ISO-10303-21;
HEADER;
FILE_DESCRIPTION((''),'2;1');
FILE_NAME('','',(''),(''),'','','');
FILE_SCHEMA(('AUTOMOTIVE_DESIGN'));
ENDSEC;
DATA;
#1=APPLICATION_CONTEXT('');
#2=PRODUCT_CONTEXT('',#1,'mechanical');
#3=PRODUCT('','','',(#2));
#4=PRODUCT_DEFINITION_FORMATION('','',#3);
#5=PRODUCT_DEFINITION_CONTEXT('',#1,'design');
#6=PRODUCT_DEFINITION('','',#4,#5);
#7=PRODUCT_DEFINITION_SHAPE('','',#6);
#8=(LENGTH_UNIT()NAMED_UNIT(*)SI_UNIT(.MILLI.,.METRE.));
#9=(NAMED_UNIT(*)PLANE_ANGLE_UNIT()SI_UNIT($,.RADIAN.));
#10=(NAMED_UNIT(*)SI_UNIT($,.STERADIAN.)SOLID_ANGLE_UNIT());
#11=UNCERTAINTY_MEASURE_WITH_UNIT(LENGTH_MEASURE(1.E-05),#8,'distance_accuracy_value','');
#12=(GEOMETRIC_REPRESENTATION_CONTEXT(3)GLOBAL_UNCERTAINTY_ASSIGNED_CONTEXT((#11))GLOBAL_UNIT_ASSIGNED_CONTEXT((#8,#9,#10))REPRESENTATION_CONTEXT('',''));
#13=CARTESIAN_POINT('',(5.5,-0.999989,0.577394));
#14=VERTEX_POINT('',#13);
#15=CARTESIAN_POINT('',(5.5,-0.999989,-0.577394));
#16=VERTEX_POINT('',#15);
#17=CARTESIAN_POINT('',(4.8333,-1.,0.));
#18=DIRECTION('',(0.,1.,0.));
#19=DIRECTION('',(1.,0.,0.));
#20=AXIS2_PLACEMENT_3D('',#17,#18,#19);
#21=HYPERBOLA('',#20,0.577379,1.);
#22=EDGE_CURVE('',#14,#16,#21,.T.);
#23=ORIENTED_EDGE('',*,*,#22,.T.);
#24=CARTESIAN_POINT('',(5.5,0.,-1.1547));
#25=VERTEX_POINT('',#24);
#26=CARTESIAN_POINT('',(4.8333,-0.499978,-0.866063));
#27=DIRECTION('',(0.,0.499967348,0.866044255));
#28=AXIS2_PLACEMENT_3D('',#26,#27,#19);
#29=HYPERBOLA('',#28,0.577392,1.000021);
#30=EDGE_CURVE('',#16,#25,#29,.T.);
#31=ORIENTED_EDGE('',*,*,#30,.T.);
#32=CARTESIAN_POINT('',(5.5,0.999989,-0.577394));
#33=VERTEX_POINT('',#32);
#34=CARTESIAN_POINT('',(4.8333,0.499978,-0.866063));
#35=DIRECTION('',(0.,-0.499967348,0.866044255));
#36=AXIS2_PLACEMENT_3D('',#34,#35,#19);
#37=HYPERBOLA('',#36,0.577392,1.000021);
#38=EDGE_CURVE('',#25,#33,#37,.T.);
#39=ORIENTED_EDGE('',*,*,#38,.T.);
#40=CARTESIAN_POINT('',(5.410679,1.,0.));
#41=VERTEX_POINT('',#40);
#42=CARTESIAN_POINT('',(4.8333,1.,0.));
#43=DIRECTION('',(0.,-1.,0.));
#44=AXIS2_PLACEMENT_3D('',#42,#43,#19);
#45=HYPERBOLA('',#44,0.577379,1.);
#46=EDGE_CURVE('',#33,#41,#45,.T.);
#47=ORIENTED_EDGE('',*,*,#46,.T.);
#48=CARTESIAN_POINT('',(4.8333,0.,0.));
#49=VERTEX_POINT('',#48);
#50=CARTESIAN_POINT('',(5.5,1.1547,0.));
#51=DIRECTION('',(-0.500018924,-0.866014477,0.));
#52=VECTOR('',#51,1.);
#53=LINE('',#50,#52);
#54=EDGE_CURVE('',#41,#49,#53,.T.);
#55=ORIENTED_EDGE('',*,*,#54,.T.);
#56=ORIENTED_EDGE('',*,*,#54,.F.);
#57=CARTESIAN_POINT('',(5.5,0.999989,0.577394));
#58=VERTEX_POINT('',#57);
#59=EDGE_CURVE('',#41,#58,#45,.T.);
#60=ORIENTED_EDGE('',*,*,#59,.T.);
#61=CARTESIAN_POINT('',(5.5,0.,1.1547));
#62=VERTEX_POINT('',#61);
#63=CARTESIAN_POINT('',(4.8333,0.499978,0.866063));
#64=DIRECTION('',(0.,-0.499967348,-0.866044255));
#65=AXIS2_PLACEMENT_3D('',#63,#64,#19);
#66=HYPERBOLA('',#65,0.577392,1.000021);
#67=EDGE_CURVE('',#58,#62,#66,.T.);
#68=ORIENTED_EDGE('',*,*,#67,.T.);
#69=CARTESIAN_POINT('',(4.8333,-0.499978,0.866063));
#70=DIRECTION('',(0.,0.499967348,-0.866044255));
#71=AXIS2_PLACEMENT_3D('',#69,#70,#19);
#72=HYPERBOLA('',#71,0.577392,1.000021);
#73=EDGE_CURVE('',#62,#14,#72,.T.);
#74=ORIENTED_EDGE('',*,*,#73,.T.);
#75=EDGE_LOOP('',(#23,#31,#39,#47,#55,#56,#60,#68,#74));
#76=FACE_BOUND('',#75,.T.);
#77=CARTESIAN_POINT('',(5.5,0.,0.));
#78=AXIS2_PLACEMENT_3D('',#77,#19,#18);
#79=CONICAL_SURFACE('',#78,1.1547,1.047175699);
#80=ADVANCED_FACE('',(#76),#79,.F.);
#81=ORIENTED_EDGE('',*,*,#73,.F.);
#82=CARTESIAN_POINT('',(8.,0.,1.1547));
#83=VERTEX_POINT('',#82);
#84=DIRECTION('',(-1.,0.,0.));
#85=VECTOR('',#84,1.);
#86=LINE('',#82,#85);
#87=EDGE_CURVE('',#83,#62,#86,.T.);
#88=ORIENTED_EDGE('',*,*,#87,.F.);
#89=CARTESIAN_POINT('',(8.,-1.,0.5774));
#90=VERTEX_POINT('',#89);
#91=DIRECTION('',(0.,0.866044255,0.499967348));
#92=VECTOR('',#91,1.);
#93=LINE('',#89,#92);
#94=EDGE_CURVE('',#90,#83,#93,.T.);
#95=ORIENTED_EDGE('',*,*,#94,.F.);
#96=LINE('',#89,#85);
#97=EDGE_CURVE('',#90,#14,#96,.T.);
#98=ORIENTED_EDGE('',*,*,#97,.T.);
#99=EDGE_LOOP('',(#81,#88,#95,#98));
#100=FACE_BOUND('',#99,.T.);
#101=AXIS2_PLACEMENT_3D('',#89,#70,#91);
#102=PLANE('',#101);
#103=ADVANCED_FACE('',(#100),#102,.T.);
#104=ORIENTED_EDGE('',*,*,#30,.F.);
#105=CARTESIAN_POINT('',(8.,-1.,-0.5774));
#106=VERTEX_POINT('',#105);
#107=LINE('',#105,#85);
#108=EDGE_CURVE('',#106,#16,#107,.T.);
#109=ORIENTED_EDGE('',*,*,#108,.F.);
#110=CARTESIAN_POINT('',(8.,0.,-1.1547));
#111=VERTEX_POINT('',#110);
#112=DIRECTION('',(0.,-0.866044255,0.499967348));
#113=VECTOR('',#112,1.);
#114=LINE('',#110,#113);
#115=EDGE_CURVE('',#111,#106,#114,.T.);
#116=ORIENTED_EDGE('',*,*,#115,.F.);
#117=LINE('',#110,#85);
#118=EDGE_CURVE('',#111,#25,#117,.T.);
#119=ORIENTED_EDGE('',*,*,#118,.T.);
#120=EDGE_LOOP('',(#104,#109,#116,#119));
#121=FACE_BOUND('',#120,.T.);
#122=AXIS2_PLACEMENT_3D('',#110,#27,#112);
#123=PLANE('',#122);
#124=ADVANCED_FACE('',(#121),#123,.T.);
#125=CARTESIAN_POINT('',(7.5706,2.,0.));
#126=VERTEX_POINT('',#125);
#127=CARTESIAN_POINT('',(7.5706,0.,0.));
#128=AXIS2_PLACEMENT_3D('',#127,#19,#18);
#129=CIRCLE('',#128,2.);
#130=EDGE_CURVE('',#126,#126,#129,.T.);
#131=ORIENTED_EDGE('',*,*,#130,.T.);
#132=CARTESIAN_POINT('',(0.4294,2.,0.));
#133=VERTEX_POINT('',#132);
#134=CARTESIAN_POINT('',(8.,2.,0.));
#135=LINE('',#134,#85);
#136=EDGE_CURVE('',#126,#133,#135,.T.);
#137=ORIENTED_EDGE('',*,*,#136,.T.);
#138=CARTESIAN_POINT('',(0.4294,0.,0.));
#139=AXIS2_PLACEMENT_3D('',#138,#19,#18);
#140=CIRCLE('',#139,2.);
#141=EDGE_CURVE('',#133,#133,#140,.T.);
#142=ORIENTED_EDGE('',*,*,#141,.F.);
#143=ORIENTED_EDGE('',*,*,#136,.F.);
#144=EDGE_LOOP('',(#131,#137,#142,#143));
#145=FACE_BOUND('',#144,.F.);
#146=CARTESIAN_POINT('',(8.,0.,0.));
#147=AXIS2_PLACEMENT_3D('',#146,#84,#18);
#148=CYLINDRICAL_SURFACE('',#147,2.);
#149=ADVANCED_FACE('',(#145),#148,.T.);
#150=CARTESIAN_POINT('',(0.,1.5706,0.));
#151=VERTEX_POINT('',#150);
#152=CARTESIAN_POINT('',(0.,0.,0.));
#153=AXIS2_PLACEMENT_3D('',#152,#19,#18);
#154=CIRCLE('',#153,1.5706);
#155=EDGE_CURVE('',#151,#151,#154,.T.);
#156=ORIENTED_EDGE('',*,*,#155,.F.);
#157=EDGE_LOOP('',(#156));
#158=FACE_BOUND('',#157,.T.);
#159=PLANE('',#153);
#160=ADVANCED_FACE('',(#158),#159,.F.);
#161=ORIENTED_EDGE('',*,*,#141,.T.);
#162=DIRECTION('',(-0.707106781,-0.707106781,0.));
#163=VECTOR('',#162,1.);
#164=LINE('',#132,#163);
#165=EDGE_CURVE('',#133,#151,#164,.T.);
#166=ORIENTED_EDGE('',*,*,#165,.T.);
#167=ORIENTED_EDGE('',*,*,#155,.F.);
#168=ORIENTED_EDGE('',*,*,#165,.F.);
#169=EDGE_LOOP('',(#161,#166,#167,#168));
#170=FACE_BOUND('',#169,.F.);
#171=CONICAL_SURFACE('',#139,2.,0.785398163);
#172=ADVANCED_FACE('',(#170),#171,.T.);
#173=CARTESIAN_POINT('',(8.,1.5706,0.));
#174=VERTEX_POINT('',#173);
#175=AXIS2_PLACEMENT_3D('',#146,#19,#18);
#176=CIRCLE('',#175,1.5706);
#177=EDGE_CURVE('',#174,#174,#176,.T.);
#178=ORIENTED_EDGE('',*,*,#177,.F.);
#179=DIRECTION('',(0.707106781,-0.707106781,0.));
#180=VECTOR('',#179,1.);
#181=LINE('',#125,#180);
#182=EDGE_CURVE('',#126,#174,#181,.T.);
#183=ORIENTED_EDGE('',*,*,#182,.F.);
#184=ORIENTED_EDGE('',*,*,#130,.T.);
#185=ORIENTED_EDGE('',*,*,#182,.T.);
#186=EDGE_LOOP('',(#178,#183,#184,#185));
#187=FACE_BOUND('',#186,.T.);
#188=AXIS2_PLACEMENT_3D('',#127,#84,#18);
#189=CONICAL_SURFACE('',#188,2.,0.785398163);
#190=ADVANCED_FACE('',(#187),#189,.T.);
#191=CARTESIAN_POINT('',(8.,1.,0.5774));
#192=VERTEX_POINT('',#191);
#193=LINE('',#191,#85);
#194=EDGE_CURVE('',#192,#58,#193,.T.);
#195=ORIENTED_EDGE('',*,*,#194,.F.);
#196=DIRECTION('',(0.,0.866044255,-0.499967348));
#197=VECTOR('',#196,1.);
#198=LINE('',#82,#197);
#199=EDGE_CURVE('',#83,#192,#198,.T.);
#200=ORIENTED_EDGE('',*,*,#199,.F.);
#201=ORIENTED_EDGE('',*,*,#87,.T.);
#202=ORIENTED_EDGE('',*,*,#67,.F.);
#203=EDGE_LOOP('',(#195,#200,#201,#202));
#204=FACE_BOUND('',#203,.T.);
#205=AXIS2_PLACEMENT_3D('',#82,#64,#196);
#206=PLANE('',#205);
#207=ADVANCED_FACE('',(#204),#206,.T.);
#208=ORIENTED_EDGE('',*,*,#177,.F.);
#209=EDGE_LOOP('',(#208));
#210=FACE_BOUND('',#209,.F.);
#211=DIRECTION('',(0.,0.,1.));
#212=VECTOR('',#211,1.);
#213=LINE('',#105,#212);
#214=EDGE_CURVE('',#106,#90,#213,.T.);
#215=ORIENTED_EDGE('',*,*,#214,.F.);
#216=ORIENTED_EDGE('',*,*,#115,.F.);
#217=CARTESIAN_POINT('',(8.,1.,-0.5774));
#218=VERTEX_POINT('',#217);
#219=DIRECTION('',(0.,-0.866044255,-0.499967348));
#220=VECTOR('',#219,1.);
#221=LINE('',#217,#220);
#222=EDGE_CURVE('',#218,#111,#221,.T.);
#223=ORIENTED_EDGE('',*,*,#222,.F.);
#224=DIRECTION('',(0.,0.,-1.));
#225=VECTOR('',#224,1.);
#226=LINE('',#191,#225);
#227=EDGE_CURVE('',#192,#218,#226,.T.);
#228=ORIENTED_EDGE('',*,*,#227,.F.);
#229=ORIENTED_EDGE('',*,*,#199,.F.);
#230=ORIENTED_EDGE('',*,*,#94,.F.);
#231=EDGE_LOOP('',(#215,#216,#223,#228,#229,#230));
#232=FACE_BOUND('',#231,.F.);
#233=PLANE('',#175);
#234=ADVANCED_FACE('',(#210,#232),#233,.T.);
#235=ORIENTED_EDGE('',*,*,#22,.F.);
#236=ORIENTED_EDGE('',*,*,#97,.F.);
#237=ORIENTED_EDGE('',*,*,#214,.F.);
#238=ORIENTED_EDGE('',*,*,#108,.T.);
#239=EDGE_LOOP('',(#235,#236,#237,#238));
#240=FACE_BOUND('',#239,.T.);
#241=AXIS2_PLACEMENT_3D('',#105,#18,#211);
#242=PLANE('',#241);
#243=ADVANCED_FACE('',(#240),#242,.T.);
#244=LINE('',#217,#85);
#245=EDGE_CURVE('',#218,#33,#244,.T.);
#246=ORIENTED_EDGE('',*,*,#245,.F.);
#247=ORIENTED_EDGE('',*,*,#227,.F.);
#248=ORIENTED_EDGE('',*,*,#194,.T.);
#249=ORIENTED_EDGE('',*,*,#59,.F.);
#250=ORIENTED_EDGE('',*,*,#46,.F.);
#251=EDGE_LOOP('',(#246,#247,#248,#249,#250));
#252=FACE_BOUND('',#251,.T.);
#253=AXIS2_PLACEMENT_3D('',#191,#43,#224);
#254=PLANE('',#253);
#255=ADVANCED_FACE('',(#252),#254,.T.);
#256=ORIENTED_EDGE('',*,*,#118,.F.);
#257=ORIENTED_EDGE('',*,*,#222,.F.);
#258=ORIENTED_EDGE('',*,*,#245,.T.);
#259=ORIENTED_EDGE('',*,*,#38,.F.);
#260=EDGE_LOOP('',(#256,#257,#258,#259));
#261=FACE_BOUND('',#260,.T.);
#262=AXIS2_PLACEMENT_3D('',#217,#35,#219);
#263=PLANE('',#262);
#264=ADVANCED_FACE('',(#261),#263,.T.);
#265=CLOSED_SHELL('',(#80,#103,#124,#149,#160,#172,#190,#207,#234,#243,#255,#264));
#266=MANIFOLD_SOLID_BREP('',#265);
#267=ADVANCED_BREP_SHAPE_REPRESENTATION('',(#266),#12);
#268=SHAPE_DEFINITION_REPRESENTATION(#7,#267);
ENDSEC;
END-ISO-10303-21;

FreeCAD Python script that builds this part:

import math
import FreeCAD as App
import Part
import Sketcher

V = App.Vector
Q = App.Units.Quantity


def edges_at(feature, points):
    """Names of the edges that pass closest to the given points."""
    edges = feature.Shape.Edges
    near = lambda p: min(range(len(edges)), key=lambda i: edges[i].distToShape(Part.Vertex(*p))[0])
    return sorted({f"Edge{near(p) + 1}" for p in points})

doc = App.newDocument("Part")
params = doc.addObject("Spreadsheet::Sheet", "Params")
for row, (alias, value) in enumerate([
    ("sketch1_width", "8 mm"),
    ("sketch1_width2", "2.5 mm"),
    ("sketch1_height", "2 mm"),
    ("revolution_angle", "360 deg"),
    ("chamfer_size", "0.4294 mm"),
    ("chamfer2_size", "0.4294 mm"),
], start=1):
    params.set(f"A{row}", alias)
    params.set(f"B{row}", "=" + value)
    params.setAlias(f"B{row}", alias)

body = doc.addObject("PartDesign::Body", "Body")

# Sketch on XY plane
sketch1 = body.newObject("Sketcher::SketchObject", "Sketch")
sketch1.AttachmentSupport = (doc.getObject("XY_Plane"), [""])
sketch1.MapMode = "FlatFace"
sketch1.addGeometry([
    Part.LineSegment(V(0, 2, 0), V(0, 0, 0)),  # 0
    Part.LineSegment(V(0, 0, 0), V(4.8, 0, 0)),  # 1
    Part.LineSegment(V(4.8, 0, 0), V(5.5, 1.2, 0)),  # 2
    Part.LineSegment(V(5.5, 1.2, 0), V(8, 1.2, 0)),  # 3
    Part.LineSegment(V(8, 1.2, 0), V(8, 2, 0)),  # 4
    Part.LineSegment(V(8, 2, 0), V(0, 2, 0)),  # 5
], False)
sketch1.addConstraint([
    Sketcher.Constraint("Coincident", 0, 2, 1, 1),
    Sketcher.Constraint("Coincident", 1, 2, 2, 1),
    Sketcher.Constraint("Coincident", 2, 2, 3, 1),
    Sketcher.Constraint("Coincident", 3, 2, 4, 1),
    Sketcher.Constraint("Coincident", 4, 2, 5, 1),
    Sketcher.Constraint("Coincident", 5, 2, 0, 1),
    Sketcher.Constraint("Vertical", 0),
    Sketcher.Constraint("Horizontal", 1),
    Sketcher.Constraint("Horizontal", 3),
    Sketcher.Constraint("Vertical", 4),
    Sketcher.Constraint("Horizontal", 5),
    Sketcher.Constraint("Coincident", 0, 2, -1, 1),
    Sketcher.Constraint("DistanceX", 5, 2, 5, 1, Q("8 mm")),
    Sketcher.Constraint("DistanceX", 3, 1, 3, 2, Q("2.5 mm")),
    Sketcher.Constraint("DistanceY", 0, 2, 0, 1, Q("2 mm")),
    Sketcher.Constraint("DistanceX", 1, 1, 1, 2, Q("4.8333 mm")),
    Sketcher.Constraint("DistanceY", 4, 1, 4, 2, Q("0.8453 mm")),
])
sketch1.setExpression("Constraints[12]", "Params.sketch1_width")
sketch1.setExpression("Constraints[13]", "Params.sketch1_width2")
sketch1.setExpression("Constraints[14]", "Params.sketch1_height")
revolution = body.newObject("PartDesign::Revolution", "Revolution")
revolution.Profile = sketch1
revolution.ReferenceAxis = (sketch1, ["H_Axis"])
revolution.setExpression("Angle", "Params.revolution_angle")
doc.recompute()

chamfer = body.newObject("PartDesign::Chamfer", "Chamfer")
chamfer.Base = (revolution, edges_at(revolution, [(8, -2, 0)]))
chamfer.setExpression("Size", "Params.chamfer_size")

# Sketch on YZ plane
sketch2 = body.newObject("Sketcher::SketchObject", "Sketch001")
sketch2.AttachmentSupport = (doc.getObject("YZ_Plane"), [""])
sketch2.MapMode = "FlatFace"
sketch2.AttachmentOffset = App.Placement(V(0, 0, 8), App.Rotation())
sketch2.addGeometry([
    Part.LineSegment(V(1, -0.6, 0), V(0, -1.2, 0)),  # 0
    Part.ArcOfCircle(Part.Circle(V(0, 0, 0), V(0, 0, 1), 1.2), math.radians(-90), math.radians(-30)),  # 1
    Part.ArcOfCircle(Part.Circle(V(0, 0, 0), V(0, 0, 1), 1.2), math.radians(-150), math.radians(-90)),  # 2
    Part.LineSegment(V(0, -1.2, 0), V(-1, -0.6, 0)),  # 3
    Part.LineSegment(V(1, 0.6, 0), V(1, -0.6, 0)),  # 4
    Part.ArcOfCircle(Part.Circle(V(0, 0, 0), V(0, 0, 1), 1.2), math.radians(-30), math.radians(30)),  # 5
    Part.ArcOfCircle(Part.Circle(V(0, 0, 0), V(0, 0, 1), 1.2), math.radians(150), math.radians(210)),  # 6
    Part.LineSegment(V(-1, 0.6, 0), V(-1, -0.6, 0)),  # 7
    Part.LineSegment(V(0, 1.2, 0), V(1, 0.6, 0)),  # 8
    Part.ArcOfCircle(Part.Circle(V(0, 0, 0), V(0, 0, 1), 1.2), math.radians(30), math.radians(90)),  # 9
    Part.ArcOfCircle(Part.Circle(V(0, 0, 0), V(0, 0, 1), 1.2), math.radians(90), math.radians(150)),  # 10
    Part.LineSegment(V(0, 1.2, 0), V(-1, 0.6, 0)),  # 11
], False)
sketch2.addConstraint([
    Sketcher.Constraint("Coincident", 0, 1, 1, 2),
    Sketcher.Constraint("Coincident", 1, 1, 0, 2),
    Sketcher.Constraint("Coincident", 2, 1, 3, 2),
    Sketcher.Constraint("Coincident", 3, 1, 2, 2),
    Sketcher.Constraint("Coincident", 4, 1, 5, 2),
    Sketcher.Constraint("Coincident", 5, 1, 4, 2),
    Sketcher.Constraint("Coincident", 6, 1, 7, 1),
    Sketcher.Constraint("Coincident", 7, 2, 6, 2),
    Sketcher.Constraint("Coincident", 8, 1, 9, 2),
    Sketcher.Constraint("Coincident", 9, 1, 8, 2),
    Sketcher.Constraint("Coincident", 10, 1, 11, 1),
    Sketcher.Constraint("Coincident", 11, 2, 10, 2),
    Sketcher.Constraint("Vertical", 4),
    Sketcher.Constraint("Vertical", 7),
    Sketcher.Constraint("Coincident", 1, 3, -1, 1),
    Sketcher.Constraint("Coincident", 2, 3, -1, 1),
    Sketcher.Constraint("Coincident", 5, 3, -1, 1),
    Sketcher.Constraint("Coincident", 6, 3, -1, 1),
    Sketcher.Constraint("Coincident", 9, 3, -1, 1),
    Sketcher.Constraint("Coincident", 10, 3, -1, 1),
    Sketcher.Constraint("Coincident", 3, 1, 1, 1),
    Sketcher.Constraint("Coincident", 5, 1, 0, 1),
    Sketcher.Constraint("Coincident", 7, 2, 2, 1),
    Sketcher.Constraint("Coincident", 9, 1, 4, 1),
    Sketcher.Constraint("Coincident", 10, 1, 8, 1),
    Sketcher.Constraint("PointOnObject", 1, 1, -2),
    Sketcher.Constraint("PointOnObject", 8, 1, -2),
    Sketcher.Constraint("Parallel", 3, 8),
    Sketcher.Constraint("Parallel", 0, 11),
    Sketcher.Constraint("DistanceX", -1, 1, 0, 1, Q("1 mm")),
    Sketcher.Constraint("Radius", 1, Q("1.1547 mm")),
])
pad1 = body.newObject("PartDesign::Pad", "Pad")
pad1.Profile = sketch2
pad1.Type = "UpToFirst"
pad1.Reversed = True
doc.recompute()

chamfer2 = body.newObject("PartDesign::Chamfer", "Chamfer001")
chamfer2.Base = (pad1, edges_at(pad1, [(0, -2, 0)]))
chamfer2.setExpression("Size", "Params.chamfer2_size")

doc.recompute()
